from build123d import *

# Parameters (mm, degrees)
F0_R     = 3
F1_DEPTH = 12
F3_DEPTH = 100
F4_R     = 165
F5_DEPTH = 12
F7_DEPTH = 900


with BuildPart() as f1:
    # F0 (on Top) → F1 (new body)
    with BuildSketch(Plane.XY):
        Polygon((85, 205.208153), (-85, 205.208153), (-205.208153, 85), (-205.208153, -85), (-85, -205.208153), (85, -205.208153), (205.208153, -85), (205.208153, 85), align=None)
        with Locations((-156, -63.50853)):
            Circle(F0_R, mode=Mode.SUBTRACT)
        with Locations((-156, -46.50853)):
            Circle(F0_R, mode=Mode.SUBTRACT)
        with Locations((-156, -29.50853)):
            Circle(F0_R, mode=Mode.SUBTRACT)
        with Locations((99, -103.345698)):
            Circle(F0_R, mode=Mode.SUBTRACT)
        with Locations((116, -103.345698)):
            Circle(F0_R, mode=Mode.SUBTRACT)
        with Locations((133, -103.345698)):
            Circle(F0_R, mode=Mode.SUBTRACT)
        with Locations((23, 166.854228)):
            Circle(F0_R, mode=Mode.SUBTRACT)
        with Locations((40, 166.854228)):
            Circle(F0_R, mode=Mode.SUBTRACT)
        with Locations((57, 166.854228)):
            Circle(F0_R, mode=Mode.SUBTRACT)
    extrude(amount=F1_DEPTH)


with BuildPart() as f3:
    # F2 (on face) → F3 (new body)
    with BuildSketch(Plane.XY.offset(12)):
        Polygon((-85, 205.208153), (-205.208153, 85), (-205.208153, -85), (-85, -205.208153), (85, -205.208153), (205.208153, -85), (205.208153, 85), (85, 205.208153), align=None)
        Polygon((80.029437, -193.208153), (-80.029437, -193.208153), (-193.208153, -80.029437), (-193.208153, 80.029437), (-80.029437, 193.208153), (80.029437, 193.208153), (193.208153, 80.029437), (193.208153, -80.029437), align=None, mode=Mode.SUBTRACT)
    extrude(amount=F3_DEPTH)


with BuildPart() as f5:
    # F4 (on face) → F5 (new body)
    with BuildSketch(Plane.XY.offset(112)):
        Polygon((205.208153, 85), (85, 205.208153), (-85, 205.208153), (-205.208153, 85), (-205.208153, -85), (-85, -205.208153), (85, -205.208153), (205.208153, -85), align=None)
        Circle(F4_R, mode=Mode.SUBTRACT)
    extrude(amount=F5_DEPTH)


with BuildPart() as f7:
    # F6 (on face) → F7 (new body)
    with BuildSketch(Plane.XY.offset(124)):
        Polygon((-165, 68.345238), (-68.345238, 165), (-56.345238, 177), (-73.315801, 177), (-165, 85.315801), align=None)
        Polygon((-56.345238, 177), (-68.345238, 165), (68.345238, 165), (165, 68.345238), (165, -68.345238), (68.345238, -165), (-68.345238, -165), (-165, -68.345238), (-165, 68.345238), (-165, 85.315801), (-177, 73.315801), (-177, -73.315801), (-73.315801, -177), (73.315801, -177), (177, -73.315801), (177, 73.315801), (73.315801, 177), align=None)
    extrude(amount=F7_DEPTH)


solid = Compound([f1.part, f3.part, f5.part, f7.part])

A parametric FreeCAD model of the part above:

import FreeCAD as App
import Part
import Sketcher
from FreeCAD import Vector


def add_polygon(sketch, points):
    """Adds a closed chain of lines whose ends are joined by coincident constraints."""
    first, n = sketch.GeometryCount, len(points)
    for a, b in zip(points, points[1:] + points[:1]):
        sketch.addGeometry(Part.LineSegment(App.Vector(*a, 0), App.Vector(*b, 0)), False)
    for i in range(n):
        sketch.addConstraint(Sketcher.Constraint("Coincident", first + i, 2, first + (i + 1) % n, 1))

doc = App.newDocument("Part")
body = doc.addObject("PartDesign::Body", "Body")

# Sketch on XY plane
sketch1 = body.newObject("Sketcher::SketchObject", "Sketch")
sketch1.AttachmentSupport = (doc.getObject("XY_Plane"), [""])
sketch1.MapMode = "FlatFace"
add_polygon(sketch1, [(85, 205.2), (-85, 205.2), (-205.2, 85), (-205.2, -85), (-85, -205.2), (85, -205.2), (205.2, -85), (205.2, 85)])  # lines 0-7
sketch1.addGeometry(Part.Circle(Vector(-156, -63.5, 0), Vector(0, 0, 1), 3), False)  # 8
sketch1.addGeometry(Part.Circle(Vector(-156, -46.5, 0), Vector(0, 0, 1), 3), False)  # 9
sketch1.addGeometry(Part.Circle(Vector(-156, -29.5, 0), Vector(0, 0, 1), 3), False)  # 10
sketch1.addGeometry(Part.Circle(Vector(99, -103.3, 0), Vector(0, 0, 1), 3), False)  # 11
sketch1.addGeometry(Part.Circle(Vector(116, -103.3, 0), Vector(0, 0, 1), 3), False)  # 12
sketch1.addGeometry(Part.Circle(Vector(133, -103.3, 0), Vector(0, 0, 1), 3), False)  # 13
sketch1.addGeometry(Part.Circle(Vector(23, 166.9, 0), Vector(0, 0, 1), 3), False)  # 14
sketch1.addGeometry(Part.Circle(Vector(40, 166.9, 0), Vector(0, 0, 1), 3), False)  # 15
sketch1.addGeometry(Part.Circle(Vector(57, 166.9, 0), Vector(0, 0, 1), 3), False)  # 16
sketch1.addConstraint(Sketcher.Constraint("Horizontal", 0))
sketch1.addConstraint(Sketcher.Constraint("Vertical", 2))
sketch1.addConstraint(Sketcher.Constraint("Horizontal", 4))
sketch1.addConstraint(Sketcher.Constraint("Vertical", 6))
sketch1.addConstraint(Sketcher.Constraint("Equal", 8, 9))
sketch1.addConstraint(Sketcher.Constraint("Equal", 9, 10))
sketch1.addConstraint(Sketcher.Constraint("Equal", 10, 11))
sketch1.addConstraint(Sketcher.Constraint("Equal", 11, 12))
sketch1.addConstraint(Sketcher.Constraint("Equal", 12, 13))
sketch1.addConstraint(Sketcher.Constraint("Equal", 13, 14))
sketch1.addConstraint(Sketcher.Constraint("Equal", 14, 15))
sketch1.addConstraint(Sketcher.Constraint("Equal", 15, 16))
sketch1.addConstraint(Sketcher.Constraint("Symmetric", 0, 2, 4, 2, -1, 1))
sketch1.addConstraint(Sketcher.Constraint("Symmetric", 1, 2, 5, 2, -1, 1))
sketch1.addConstraint(Sketcher.Constraint("Perpendicular", 1, 3))
sketch1.addConstraint(Sketcher.Constraint("Perpendicular", 5, 7))
sketch1.addConstraint(Sketcher.Constraint("Horizontal", 11, 3, 12, 3))
sketch1.addConstraint(Sketcher.Constraint("Horizontal", 12, 3, 13, 3))
sketch1.addConstraint(Sketcher.Constraint("Horizontal", 14, 3, 15, 3))
sketch1.addConstraint(Sketcher.Constraint("Horizontal", 15, 3, 16, 3))
sketch1.addConstraint(Sketcher.Constraint("Horizontal", 2, 2, 5, 2))
sketch1.addConstraint(Sketcher.Constraint("Horizontal", 1, 2, 6, 2))
sketch1.addConstraint(Sketcher.Constraint("Vertical", 8, 3, 9, 3))
sketch1.addConstraint(Sketcher.Constraint("Vertical", 9, 3, 10, 3))
sketch1.addConstraint(Sketcher.Constraint("Vertical", 0, 2, 3, 2))
sketch1.addConstraint(Sketcher.Constraint("Equal", 4, 2))
sketch1.addConstraint(Sketcher.Constraint("Diameter", 8, 6.0))
sketch1.addConstraint(Sketcher.Constraint("DistanceX", 0, 2, 0, 1, 170.0))
sketch1.addConstraint(Sketcher.Constraint("Distance", 1, 170.0))
sketch1.addConstraint(Sketcher.Constraint("DistanceX", 8, 3, -1, 1, 156.0))
sketch1.addConstraint(Sketcher.Constraint("DistanceX", -1, 1, 11, 3, 99.0))
sketch1.addConstraint(Sketcher.Constraint("DistanceX", -1, 1, 12, 3, 116.0))
sketch1.addConstraint(Sketcher.Constraint("DistanceX", -1, 1, 13, 3, 133.0))
sketch1.addConstraint(Sketcher.Constraint("DistanceX", -1, 1, 14, 3, 23.0))
sketch1.addConstraint(Sketcher.Constraint("DistanceX", -1, 1, 15, 3, 40.0))
sketch1.addConstraint(Sketcher.Constraint("DistanceX", -1, 1, 16, 3, 57.0))
sketch1.addConstraint(Sketcher.Constraint("DistanceY", 8, 3, 9, 3, 17.0))
sketch1.addConstraint(Sketcher.Constraint("DistanceY", 9, 3, 10, 3, 17.0))
sketch1.addConstraint(Sketcher.Constraint("DistanceY", 11, 3, -1, 1, 103.345698))
sketch1.addConstraint(Sketcher.Constraint("DistanceY", 8, 3, -1, 1, 63.50853))
sketch1.addConstraint(Sketcher.Constraint("DistanceY", -1, 1, 14, 3, 166.854228))
pad1 = body.newObject("PartDesign::Pad", "Pad")
pad1.Profile = sketch1
pad1.Length = 12
body2 = doc.addObject("PartDesign::Body", "Body001")

# Sketch on XY plane
sketch2 = body2.newObject("Sketcher::SketchObject", "Sketch001")
sketch2.AttachmentSupport = (doc.getObject("XY_Plane001"), [""])
sketch2.MapMode = "FlatFace"
sketch2.AttachmentOffset = App.Placement(Vector(0, 0, 12), App.Rotation())
add_polygon(sketch2, [(-85, 205), (-205, 85), (-205, -85), (-85, -205), (85, -205), (205, -85), (205, 85), (85, 205)])  # lines 0-7
add_polygon(sketch2, [(193, -80), (80, -193), (-80, -193), (-193, -80), (-193, 80), (-80, 193), (80, 193), (193, 80)])  # lines 8-15
sketch2.addConstraint(Sketcher.Constraint("Vertical", 1))
sketch2.addConstraint(Sketcher.Constraint("Horizontal", 3))
sketch2.addConstraint(Sketcher.Constraint("Vertical", 5))
sketch2.addConstraint(Sketcher.Constraint("Horizontal", 7))
sketch2.addConstraint(Sketcher.Constraint("Horizontal", 9))
sketch2.addConstraint(Sketcher.Constraint("Vertical", 11))
sketch2.addConstraint(Sketcher.Constraint("Horizontal", 13))
sketch2.addConstraint(Sketcher.Constraint("Vertical", 15))
sketch2.addConstraint(Sketcher.Constraint("Symmetric", 0, 2, 4, 2, -1, 1))
sketch2.addConstraint(Sketcher.Constraint("Symmetric", 2, 2, 6, 2, -1, 1))
sketch2.addConstraint(Sketcher.Constraint("Symmetric", 8, 2, 12, 2, -1, 1))
sketch2.addConstraint(Sketcher.Constraint("Symmetric", 10, 2, 14, 2, -1, 1))
sketch2.addConstraint(Sketcher.Constraint("Perpendicular", 0, 2))
sketch2.addConstraint(Sketcher.Constraint("Perpendicular", 2, 4))
sketch2.addConstraint(Sketcher.Constraint("Perpendicular", 4, 6))
sketch2.addConstraint(Sketcher.Constraint("Perpendicular", 6, 8))
sketch2.addConstraint(Sketcher.Constraint("Perpendicular", 8, 10))
sketch2.addConstraint(Sketcher.Constraint("Perpendicular", 10, 12))
sketch2.addConstraint(Sketcher.Constraint("Perpendicular", 12, 14))
sketch2.addConstraint(Sketcher.Constraint("Horizontal", 1, 2, 4, 2))
sketch2.addConstraint(Sketcher.Constraint("Horizontal", 11, 2, 14, 2))
sketch2.addConstraint(Sketcher.Constraint("Vertical", 3, 2, 6, 2))
sketch2.addConstraint(Sketcher.Constraint("Equal", 7, 1))
sketch2.addConstraint(Sketcher.Constraint("Equal", 13, 11))
sketch2.addConstraint(Sketcher.Constraint("DistanceX", 3, 1, 3, 2, 170.0))
sketch2.addConstraint(Sketcher.Constraint("Distance", 0, 170.0))
sketch2.addConstraint(Sketcher.Constraint("DistanceY", 3, 2, 8, 2, 12.0))
sketch2.addConstraint(Sketcher.Constraint("DistanceX", 9, 2, 9, 1, 160.058874))
pad2 = body2.newObject("PartDesign::Pad", "Pad001")
pad2.Profile = sketch2
pad2.Length = 100
body3 = doc.addObject("PartDesign::Body", "Body002")

# Sketch on XY plane
sketch3 = body3.newObject("Sketcher::SketchObject", "Sketch002")
sketch3.AttachmentSupport = (doc.getObject("XY_Plane002"), [""])
sketch3.MapMode = "FlatFace"
sketch3.AttachmentOffset = App.Placement(Vector(0, 0, 112), App.Rotation())
add_polygon(sketch3, [(205, 85), (85, 205), (-85, 205), (-205, 85), (-205, -85), (-85, -205), (85, -205), (205, -85)])  # lines 0-7
sketch3.addGeometry(Part.Circle(Vector(0, 0, 0), Vector(0, 0, 1), 165), False)  # 8
sketch3.addConstraint(Sketcher.Constraint("Horizontal", 1))
sketch3.addConstraint(Sketcher.Constraint("Vertical", 3))
sketch3.addConstraint(Sketcher.Constraint("Horizontal", 5))
sketch3.addConstraint(Sketcher.Constraint("Vertical", 7))
sketch3.addConstraint(Sketcher.Constraint("Coincident", 8, 3, -1, 1))
sketch3.addConstraint(Sketcher.Constraint("Symmetric", 0, 2, 4, 2, -1, 1))
sketch3.addConstraint(Sketcher.Constraint("Symmetric", 2, 2, 6, 2, -1, 1))
sketch3.addConstraint(Sketcher.Constraint("Perpendicular", 0, 2))
sketch3.addConstraint(Sketcher.Constraint("Perpendicular", 2, 4))
sketch3.addConstraint(Sketcher.Constraint("Perpendicular", 4, 6))
sketch3.addConstraint(Sketcher.Constraint("Horizontal", 3, 2, 6, 2))
sketch3.addConstraint(Sketcher.Constraint("Vertical", 1, 2, 4, 2))
sketch3.addConstraint(Sketcher.Constraint("Equal", 5, 3))
sketch3.addConstraint(Sketcher.Constraint("Diameter", 8, 330.0))
sketch3.addConstraint(Sketcher.Constraint("DistanceX", 1, 2, 1, 1, 170.0))
sketch3.addConstraint(Sketcher.Constraint("Distance", 0, 170.0))
pad3 = body3.newObject("PartDesign::Pad", "Pad002")
pad3.Profile = sketch3
pad3.Length = 12
body4 = doc.addObject("PartDesign::Body", "Body003")

# Sketch on XY plane
sketch4 = body4.newObject("Sketcher::SketchObject", "Sketch003")
sketch4.AttachmentSupport = (doc.getObject("XY_Plane003"), [""])
sketch4.MapMode = "FlatFace"
sketch4.AttachmentOffset = App.Placement(Vector(0, 0, 124), App.Rotation())
add_polygon(sketch4, [(-73, 177), (-177, 73), (-177, -73), (-73, -177), (73, -177), (177, -73), (177, 73), (73, 177)])  # lines 0-7
add_polygon(sketch4, [(-165, 68), (-68, 165), (68, 165), (165, 68), (165, -68), (68, -165), (-68, -165), (-165, -68)])  # lines 8-15
sketch4.addConstraint(Sketcher.Constraint("Vertical", 1))
sketch4.addConstraint(Sketcher.Constraint("Horizontal", 3))
sketch4.addConstraint(Sketcher.Constraint("Vertical", 5))
sketch4.addConstraint(Sketcher.Constraint("Horizontal", 7))
sketch4.addConstraint(Sketcher.Constraint("Horizontal", 9))
sketch4.addConstraint(Sketcher.Constraint("Vertical", 11))
sketch4.addConstraint(Sketcher.Constraint("Horizontal", 13))
sketch4.addConstraint(Sketcher.Constraint("Vertical", 15))
sketch4.addConstraint(Sketcher.Constraint("Symmetric", 0, 2, 4, 2, -1, 1))
sketch4.addConstraint(Sketcher.Constraint("Symmetric", 2, 2, 6, 2, -1, 1))
sketch4.addConstraint(Sketcher.Constraint("Symmetric", 8, 2, 12, 2, -1, 1))
sketch4.addConstraint(Sketcher.Constraint("Symmetric", 10, 2, 14, 2, -1, 1))
sketch4.addConstraint(Sketcher.Constraint("Perpendicular", 0, 2))
sketch4.addConstraint(Sketcher.Constraint("Perpendicular", 2, 4))
sketch4.addConstraint(Sketcher.Constraint("Perpendicular", 4, 6))
sketch4.addConstraint(Sketcher.Constraint("Perpendicular", 6, 8))
sketch4.addConstraint(Sketcher.Constraint("Perpendicular", 8, 10))
sketch4.addConstraint(Sketcher.Constraint("Perpendicular", 10, 12))
sketch4.addConstraint(Sketcher.Constraint("Perpendicular", 12, 14))
sketch4.addConstraint(Sketcher.Constraint("Horizontal", 1, 2, 4, 2))
sketch4.addConstraint(Sketcher.Constraint("Horizontal", 11, 2, 14, 2))
sketch4.addConstraint(Sketcher.Constraint("Vertical", 3, 2, 6, 2))
sketch4.addConstraint(Sketcher.Constraint("Equal", 7, 1))
sketch4.addConstraint(Sketcher.Constraint("Equal", 13, 11))
sketch4.addConstraint(Sketcher.Constraint("DistanceX", 0, 2, -1, 1, 177.0))
sketch4.addConstraint(Sketcher.Constraint("DistanceY", -1, 1, 8, 2, 165.0))
sketch4.addConstraint(Sketcher.Constraint("DistanceX", 3, 1, 3, 2, 146.631602))
sketch4.addConstraint(Sketcher.Constraint("DistanceX", 9, 1, 9, 2, 136.690476))
pad4 = body4.newObject("PartDesign::Pad", "Pad003")
pad4.Profile = sketch4
pad4.Length = 900

doc.recompute()
